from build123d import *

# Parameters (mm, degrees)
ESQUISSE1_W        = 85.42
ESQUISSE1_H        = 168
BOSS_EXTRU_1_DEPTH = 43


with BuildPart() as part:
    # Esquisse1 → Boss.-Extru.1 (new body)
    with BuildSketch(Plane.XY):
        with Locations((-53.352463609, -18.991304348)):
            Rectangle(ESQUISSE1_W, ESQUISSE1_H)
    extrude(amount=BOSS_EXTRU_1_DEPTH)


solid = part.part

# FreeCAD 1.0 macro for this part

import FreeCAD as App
import Part
import Sketcher
Q = App.Units.Quantity


def add_polygon(sketch, points):
    """Adds a closed chain of lines whose ends are joined by coincident constraints."""
    first, n = sketch.GeometryCount, len(points)
    for a, b in zip(points, points[1:] + points[:1]):
        sketch.addGeometry(Part.LineSegment(App.Vector(*a, 0), App.Vector(*b, 0)), False)
    for i in range(n):
        sketch.addConstraint(Sketcher.Constraint("Coincident", first + i, 2, first + (i + 1) % n, 1))

doc = App.newDocument("Part")
body = doc.addObject("PartDesign::Body", "Body")

sketch1 = body.newObject("Sketcher::SketchObject", "Sketch")
sketch1.AttachmentSupport = (doc.getObject("XY_Plane"), [""])
sketch1.MapMode = "FlatFace"
add_polygon(sketch1, [(-96, 65), (-96, -103), (-11, -103), (-11, 65)])
sketch1.addConstraint([
    Sketcher.Constraint("Vertical", 0),
    Sketcher.Constraint("Horizontal", 1),
    Sketcher.Constraint("Vertical", 2),
    Sketcher.Constraint("Horizontal", 3),
    Sketcher.Constraint("DistanceY", 0, 2, 0, 1, Q("168 mm")),
    Sketcher.Constraint("DistanceX", 1, 1, 1, 2, Q("85.42 mm")),
    Sketcher.Constraint("DistanceX", 0, 2, -1, 1, Q("96.062464 mm")),
    Sketcher.Constraint("DistanceY", 0, 2, -1, 1, Q("102.991304 mm")),
])
pad1 = body.newObject("PartDesign::Pad", "Pad")
pad1.Profile = sketch1
pad1.Length = 43

doc.recompute()
